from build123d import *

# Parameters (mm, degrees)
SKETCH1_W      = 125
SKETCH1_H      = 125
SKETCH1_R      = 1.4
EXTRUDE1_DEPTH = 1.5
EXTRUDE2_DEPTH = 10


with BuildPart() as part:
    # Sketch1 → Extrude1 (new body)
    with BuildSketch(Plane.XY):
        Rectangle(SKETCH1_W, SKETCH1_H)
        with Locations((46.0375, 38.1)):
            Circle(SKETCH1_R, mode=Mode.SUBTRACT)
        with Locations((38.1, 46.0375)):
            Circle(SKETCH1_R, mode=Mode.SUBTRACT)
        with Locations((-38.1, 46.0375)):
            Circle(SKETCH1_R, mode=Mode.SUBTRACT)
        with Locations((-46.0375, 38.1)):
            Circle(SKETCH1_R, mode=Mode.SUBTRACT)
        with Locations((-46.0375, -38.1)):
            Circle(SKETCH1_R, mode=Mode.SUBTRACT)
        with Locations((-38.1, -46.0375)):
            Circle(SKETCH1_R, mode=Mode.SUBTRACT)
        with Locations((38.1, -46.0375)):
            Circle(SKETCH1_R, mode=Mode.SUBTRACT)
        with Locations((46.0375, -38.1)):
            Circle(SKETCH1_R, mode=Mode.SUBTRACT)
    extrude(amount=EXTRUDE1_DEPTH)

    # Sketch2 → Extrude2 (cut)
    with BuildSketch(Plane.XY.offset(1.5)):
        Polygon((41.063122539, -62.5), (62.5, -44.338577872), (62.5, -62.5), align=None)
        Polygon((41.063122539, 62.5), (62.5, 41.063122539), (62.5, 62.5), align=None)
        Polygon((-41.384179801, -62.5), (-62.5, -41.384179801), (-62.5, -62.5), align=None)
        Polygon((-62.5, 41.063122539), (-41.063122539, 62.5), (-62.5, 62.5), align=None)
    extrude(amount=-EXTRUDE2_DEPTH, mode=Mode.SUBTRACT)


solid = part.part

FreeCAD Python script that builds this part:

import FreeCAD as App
import Part
import Sketcher
from FreeCAD import Vector


def add_polygon(sketch, points):
    """Adds a closed chain of lines whose ends are joined by coincident constraints."""
    first, n = sketch.GeometryCount, len(points)
    for a, b in zip(points, points[1:] + points[:1]):
        sketch.addGeometry(Part.LineSegment(App.Vector(*a, 0), App.Vector(*b, 0)), False)
    for i in range(n):
        sketch.addConstraint(Sketcher.Constraint("Coincident", first + i, 2, first + (i + 1) % n, 1))

doc = App.newDocument("Part")
body = doc.addObject("PartDesign::Body", "Body")

sketch1 = doc.addObject("Sketcher::SketchObject", "Sketch")
body.addObject(sketch1)
sketch1.AttachmentSupport = (doc.XY_Plane, [""])
sketch1.MapMode = "FlatFace"
add_polygon(sketch1, [(-62.5, 62.5), (-62.5, -62.5), (62.5, -62.5), (62.5, 62.5)])
sketch1.addGeometry(Part.Circle(Vector(-38.1, -46, 0), Vector(0, 0, 1), 1.4), False)
sketch1.addGeometry(Part.Circle(Vector(-46, -38.1, 0), Vector(0, 0, 1), 1.4), False)
sketch1.addGeometry(Part.Circle(Vector(38.1, -46, 0), Vector(0, 0, 1), 1.4), False)
sketch1.addGeometry(Part.Circle(Vector(46, -38.1, 0), Vector(0, 0, 1), 1.4), False)
sketch1.addGeometry(Part.Circle(Vector(-46, 38.1, 0), Vector(0, 0, 1), 1.4), False)
sketch1.addGeometry(Part.Circle(Vector(-38.1, 46, 0), Vector(0, 0, 1), 1.4), False)
sketch1.addGeometry(Part.Circle(Vector(46, 38.1, 0), Vector(0, 0, 1), 1.4), False)
sketch1.addGeometry(Part.Circle(Vector(38.1, 46, 0), Vector(0, 0, 1), 1.4), False)
sketch1.addConstraint(Sketcher.Constraint("Vertical", 0))
sketch1.addConstraint(Sketcher.Constraint("Horizontal", 1))
sketch1.addConstraint(Sketcher.Constraint("Vertical", 2))
sketch1.addConstraint(Sketcher.Constraint("Horizontal", 3))
sketch1.addConstraint(Sketcher.Constraint("Equal", 4, 5))
sketch1.addConstraint(Sketcher.Constraint("Equal", 5, 6))
sketch1.addConstraint(Sketcher.Constraint("Equal", 6, 7))
sketch1.addConstraint(Sketcher.Constraint("Equal", 7, 8))
sketch1.addConstraint(Sketcher.Constraint("Equal", 8, 9))
sketch1.addConstraint(Sketcher.Constraint("Equal", 9, 10))
sketch1.addConstraint(Sketcher.Constraint("Equal", 10, 11))
sketch1.addConstraint(Sketcher.Constraint("Symmetric", 7, 3, 8, 3, -1, 1))
sketch1.addConstraint(Sketcher.Constraint("Symmetric", 6, 3, 9, 3, -1, 1))
sketch1.addConstraint(Sketcher.Constraint("Symmetric", 5, 3, 10, 3, -1, 1))
sketch1.addConstraint(Sketcher.Constraint("Symmetric", 4, 3, 11, 3, -1, 1))
sketch1.addConstraint(Sketcher.Constraint("Symmetric", 0, 2, 2, 2, -1, 1))
sketch1.addConstraint(Sketcher.Constraint("Symmetric", 4, 3, 6, 3, -2))
sketch1.addConstraint(Sketcher.Constraint("Symmetric", 5, 3, 7, 3, -2))
sketch1.addConstraint(Sketcher.Constraint("Equal", 3, 0))
sketch1.addConstraint(Sketcher.Constraint("Diameter", 4, 2.8))
sketch1.addConstraint(Sketcher.Constraint("DistanceX", 1, 1, 1, 2, 125.0))
sketch1.addConstraint(Sketcher.Constraint("DistanceX", 4, 3, -1, 1, 38.1))
sketch1.addConstraint(Sketcher.Constraint("DistanceY", 5, 3, -1, 1, 38.1))
sketch1.addConstraint(Sketcher.Constraint("DistanceX", 5, 3, 7, 3, 92.075))
sketch1.addConstraint(Sketcher.Constraint("DistanceY", 4, 3, 9, 3, 92.075))
pad1 = doc.addObject("PartDesign::Pad", "Pad")
body.addObject(pad1)
pad1.Profile = sketch1
pad1.Length = 1.5

sketch2 = doc.addObject("Sketcher::SketchObject", "Sketch001")
body.addObject(sketch2)
sketch2.AttachmentSupport = (doc.XY_Plane, [""])
sketch2.MapMode = "FlatFace"
sketch2.AttachmentOffset = App.Placement(Vector(0, 0, 1.5), App.Rotation())
add_polygon(sketch2, [(62, -44), (41, -62), (62, -62)])
add_polygon(sketch2, [(41, 62), (62, 41), (62, 62)])
add_polygon(sketch2, [(-41, -62), (-62, -41), (-62, -62)])
add_polygon(sketch2, [(-62, 41), (-41, 62), (-62, 62)])
sketch2.addConstraint(Sketcher.Constraint("Horizontal", 1))
sketch2.addConstraint(Sketcher.Constraint("Vertical", 2))
sketch2.addConstraint(Sketcher.Constraint("Vertical", 4))
sketch2.addConstraint(Sketcher.Constraint("Horizontal", 5))
sketch2.addConstraint(Sketcher.Constraint("Vertical", 7))
sketch2.addConstraint(Sketcher.Constraint("Horizontal", 8))
sketch2.addConstraint(Sketcher.Constraint("Horizontal", 10))
sketch2.addConstraint(Sketcher.Constraint("Vertical", 11))
sketch2.addConstraint(Sketcher.Constraint("Symmetric", 4, 2, 7, 2, -1, 1))
sketch2.addConstraint(Sketcher.Constraint("Symmetric", 0, 2, 9, 2, -1, 1))
sketch2.addConstraint(Sketcher.Constraint("Symmetric", 1, 2, 7, 2, -2))
sketch2.addConstraint(Sketcher.Constraint("Symmetric", 3, 2, 11, 2, -2))
sketch2.addConstraint(Sketcher.Constraint("Parallel", 3, 6))
sketch2.addConstraint(Sketcher.Constraint("Perpendicular", 6, 9))
sketch2.addConstraint(Sketcher.Constraint("Vertical", 0, 2, 5, 2))
sketch2.addConstraint(Sketcher.Constraint("DistanceY", 1, 2, 4, 2, 125.0))
sketch2.addConstraint(Sketcher.Constraint("DistanceX", 6, 2, 2, 2, 125.0))
sketch2.addConstraint(Sketcher.Constraint("DistanceX", 8, 1, 8, 2, 21.11582))
sketch2.addConstraint(Sketcher.Constraint("DistanceY", 2, 2, 3, 2, 85.4017))
sketch2.addConstraint(Sketcher.Constraint("DistanceY", 2, 2, 6, 2, 2.954398))
pocket1 = doc.addObject("PartDesign::Pocket", "Pocket")
body.addObject(pocket1)
pocket1.Profile = sketch2
pocket1.Length = 10

doc.recompute()
